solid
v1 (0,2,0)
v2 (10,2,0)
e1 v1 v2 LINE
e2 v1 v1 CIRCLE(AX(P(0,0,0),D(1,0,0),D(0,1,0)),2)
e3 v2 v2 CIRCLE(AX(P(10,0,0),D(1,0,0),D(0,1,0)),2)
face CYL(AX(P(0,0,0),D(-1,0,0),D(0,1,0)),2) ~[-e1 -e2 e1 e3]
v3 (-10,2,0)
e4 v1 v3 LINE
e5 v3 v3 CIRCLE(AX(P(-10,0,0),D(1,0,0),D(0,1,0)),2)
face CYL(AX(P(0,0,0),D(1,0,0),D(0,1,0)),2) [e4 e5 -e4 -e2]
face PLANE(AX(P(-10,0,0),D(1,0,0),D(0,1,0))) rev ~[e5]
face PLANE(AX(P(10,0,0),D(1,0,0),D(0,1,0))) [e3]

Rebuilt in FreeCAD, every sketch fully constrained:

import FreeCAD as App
import Part
import Sketcher
from FreeCAD import Vector

doc = App.newDocument("Part")
params = doc.addObject("Spreadsheet::Sheet", "Params")
for row, (alias, value) in enumerate([
    ("sketch1_diameter", "4 mm"),
    ("pad1_length", "20 mm"),
], start=1):
    params.set(f"A{row}", alias)
    params.set(f"B{row}", "=" + value)
    params.setAlias(f"B{row}", alias)

body = doc.addObject("PartDesign::Body", "Body")

sketch1 = body.newObject("Sketcher::SketchObject", "Sketch")
sketch1.AttachmentSupport = (doc.getObject("YZ_Plane"), [""])
sketch1.MapMode = "FlatFace"
sketch1.addGeometry(Part.Circle(Vector(0, 0, 0), Vector(0, 0, 1), 2), False)
sketch1.addConstraint([
    Sketcher.Constraint("Coincident", 0, 3, -1, 1),
    Sketcher.Constraint("Diameter", 0, 4.0),
])
sketch1.setExpression("Constraints[1]", "Params.sketch1_diameter")
pad1 = body.newObject("PartDesign::Pad", "Pad")
pad1.Profile = sketch1
pad1.setExpression("Length", "Params.pad1_length")
pad1.Midplane = True

doc.recompute()
